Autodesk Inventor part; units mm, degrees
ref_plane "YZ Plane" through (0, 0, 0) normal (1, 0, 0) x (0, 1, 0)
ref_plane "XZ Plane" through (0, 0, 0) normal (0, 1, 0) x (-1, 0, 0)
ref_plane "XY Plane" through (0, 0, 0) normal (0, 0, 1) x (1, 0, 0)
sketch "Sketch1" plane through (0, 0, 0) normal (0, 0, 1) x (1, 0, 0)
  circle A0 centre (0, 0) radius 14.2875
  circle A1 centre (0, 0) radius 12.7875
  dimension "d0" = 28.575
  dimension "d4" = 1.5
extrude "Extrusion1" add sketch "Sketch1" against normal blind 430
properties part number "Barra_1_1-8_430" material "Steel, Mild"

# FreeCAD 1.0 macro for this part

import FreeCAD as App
import Part
import Sketcher

doc = App.newDocument("Part")
body = doc.addObject("PartDesign::Body", "Body")

# Sketch on XY plane
sketch1 = body.newObject("Sketcher::SketchObject", "Sketch")
sketch1.AttachmentSupport = (doc.getObject("XY_Plane"), [""])
sketch1.MapMode = "FlatFace"
sketch1.addGeometry(Part.Circle(App.Vector(0, 0, 0), App.Vector(0, 0, 1), 14.2875), False)
sketch1.addGeometry(Part.Circle(App.Vector(0, 0, 0), App.Vector(0, 0, 1), 12.7875), False)
sketch1.addConstraint(Sketcher.Constraint("Coincident", 0, 3, -1, 1))
sketch1.addConstraint(Sketcher.Constraint("Coincident", 1, 3, -1, 1))
sketch1.addConstraint(Sketcher.Constraint("Diameter", 0, 28.575))
sketch1.addConstraint(Sketcher.Constraint("Diameter", 1, 25.575))
pad1 = body.newObject("PartDesign::Pad", "Pad")
pad1.Profile = sketch1
pad1.Length = 430
pad1.Reversed = True

doc.recompute()
